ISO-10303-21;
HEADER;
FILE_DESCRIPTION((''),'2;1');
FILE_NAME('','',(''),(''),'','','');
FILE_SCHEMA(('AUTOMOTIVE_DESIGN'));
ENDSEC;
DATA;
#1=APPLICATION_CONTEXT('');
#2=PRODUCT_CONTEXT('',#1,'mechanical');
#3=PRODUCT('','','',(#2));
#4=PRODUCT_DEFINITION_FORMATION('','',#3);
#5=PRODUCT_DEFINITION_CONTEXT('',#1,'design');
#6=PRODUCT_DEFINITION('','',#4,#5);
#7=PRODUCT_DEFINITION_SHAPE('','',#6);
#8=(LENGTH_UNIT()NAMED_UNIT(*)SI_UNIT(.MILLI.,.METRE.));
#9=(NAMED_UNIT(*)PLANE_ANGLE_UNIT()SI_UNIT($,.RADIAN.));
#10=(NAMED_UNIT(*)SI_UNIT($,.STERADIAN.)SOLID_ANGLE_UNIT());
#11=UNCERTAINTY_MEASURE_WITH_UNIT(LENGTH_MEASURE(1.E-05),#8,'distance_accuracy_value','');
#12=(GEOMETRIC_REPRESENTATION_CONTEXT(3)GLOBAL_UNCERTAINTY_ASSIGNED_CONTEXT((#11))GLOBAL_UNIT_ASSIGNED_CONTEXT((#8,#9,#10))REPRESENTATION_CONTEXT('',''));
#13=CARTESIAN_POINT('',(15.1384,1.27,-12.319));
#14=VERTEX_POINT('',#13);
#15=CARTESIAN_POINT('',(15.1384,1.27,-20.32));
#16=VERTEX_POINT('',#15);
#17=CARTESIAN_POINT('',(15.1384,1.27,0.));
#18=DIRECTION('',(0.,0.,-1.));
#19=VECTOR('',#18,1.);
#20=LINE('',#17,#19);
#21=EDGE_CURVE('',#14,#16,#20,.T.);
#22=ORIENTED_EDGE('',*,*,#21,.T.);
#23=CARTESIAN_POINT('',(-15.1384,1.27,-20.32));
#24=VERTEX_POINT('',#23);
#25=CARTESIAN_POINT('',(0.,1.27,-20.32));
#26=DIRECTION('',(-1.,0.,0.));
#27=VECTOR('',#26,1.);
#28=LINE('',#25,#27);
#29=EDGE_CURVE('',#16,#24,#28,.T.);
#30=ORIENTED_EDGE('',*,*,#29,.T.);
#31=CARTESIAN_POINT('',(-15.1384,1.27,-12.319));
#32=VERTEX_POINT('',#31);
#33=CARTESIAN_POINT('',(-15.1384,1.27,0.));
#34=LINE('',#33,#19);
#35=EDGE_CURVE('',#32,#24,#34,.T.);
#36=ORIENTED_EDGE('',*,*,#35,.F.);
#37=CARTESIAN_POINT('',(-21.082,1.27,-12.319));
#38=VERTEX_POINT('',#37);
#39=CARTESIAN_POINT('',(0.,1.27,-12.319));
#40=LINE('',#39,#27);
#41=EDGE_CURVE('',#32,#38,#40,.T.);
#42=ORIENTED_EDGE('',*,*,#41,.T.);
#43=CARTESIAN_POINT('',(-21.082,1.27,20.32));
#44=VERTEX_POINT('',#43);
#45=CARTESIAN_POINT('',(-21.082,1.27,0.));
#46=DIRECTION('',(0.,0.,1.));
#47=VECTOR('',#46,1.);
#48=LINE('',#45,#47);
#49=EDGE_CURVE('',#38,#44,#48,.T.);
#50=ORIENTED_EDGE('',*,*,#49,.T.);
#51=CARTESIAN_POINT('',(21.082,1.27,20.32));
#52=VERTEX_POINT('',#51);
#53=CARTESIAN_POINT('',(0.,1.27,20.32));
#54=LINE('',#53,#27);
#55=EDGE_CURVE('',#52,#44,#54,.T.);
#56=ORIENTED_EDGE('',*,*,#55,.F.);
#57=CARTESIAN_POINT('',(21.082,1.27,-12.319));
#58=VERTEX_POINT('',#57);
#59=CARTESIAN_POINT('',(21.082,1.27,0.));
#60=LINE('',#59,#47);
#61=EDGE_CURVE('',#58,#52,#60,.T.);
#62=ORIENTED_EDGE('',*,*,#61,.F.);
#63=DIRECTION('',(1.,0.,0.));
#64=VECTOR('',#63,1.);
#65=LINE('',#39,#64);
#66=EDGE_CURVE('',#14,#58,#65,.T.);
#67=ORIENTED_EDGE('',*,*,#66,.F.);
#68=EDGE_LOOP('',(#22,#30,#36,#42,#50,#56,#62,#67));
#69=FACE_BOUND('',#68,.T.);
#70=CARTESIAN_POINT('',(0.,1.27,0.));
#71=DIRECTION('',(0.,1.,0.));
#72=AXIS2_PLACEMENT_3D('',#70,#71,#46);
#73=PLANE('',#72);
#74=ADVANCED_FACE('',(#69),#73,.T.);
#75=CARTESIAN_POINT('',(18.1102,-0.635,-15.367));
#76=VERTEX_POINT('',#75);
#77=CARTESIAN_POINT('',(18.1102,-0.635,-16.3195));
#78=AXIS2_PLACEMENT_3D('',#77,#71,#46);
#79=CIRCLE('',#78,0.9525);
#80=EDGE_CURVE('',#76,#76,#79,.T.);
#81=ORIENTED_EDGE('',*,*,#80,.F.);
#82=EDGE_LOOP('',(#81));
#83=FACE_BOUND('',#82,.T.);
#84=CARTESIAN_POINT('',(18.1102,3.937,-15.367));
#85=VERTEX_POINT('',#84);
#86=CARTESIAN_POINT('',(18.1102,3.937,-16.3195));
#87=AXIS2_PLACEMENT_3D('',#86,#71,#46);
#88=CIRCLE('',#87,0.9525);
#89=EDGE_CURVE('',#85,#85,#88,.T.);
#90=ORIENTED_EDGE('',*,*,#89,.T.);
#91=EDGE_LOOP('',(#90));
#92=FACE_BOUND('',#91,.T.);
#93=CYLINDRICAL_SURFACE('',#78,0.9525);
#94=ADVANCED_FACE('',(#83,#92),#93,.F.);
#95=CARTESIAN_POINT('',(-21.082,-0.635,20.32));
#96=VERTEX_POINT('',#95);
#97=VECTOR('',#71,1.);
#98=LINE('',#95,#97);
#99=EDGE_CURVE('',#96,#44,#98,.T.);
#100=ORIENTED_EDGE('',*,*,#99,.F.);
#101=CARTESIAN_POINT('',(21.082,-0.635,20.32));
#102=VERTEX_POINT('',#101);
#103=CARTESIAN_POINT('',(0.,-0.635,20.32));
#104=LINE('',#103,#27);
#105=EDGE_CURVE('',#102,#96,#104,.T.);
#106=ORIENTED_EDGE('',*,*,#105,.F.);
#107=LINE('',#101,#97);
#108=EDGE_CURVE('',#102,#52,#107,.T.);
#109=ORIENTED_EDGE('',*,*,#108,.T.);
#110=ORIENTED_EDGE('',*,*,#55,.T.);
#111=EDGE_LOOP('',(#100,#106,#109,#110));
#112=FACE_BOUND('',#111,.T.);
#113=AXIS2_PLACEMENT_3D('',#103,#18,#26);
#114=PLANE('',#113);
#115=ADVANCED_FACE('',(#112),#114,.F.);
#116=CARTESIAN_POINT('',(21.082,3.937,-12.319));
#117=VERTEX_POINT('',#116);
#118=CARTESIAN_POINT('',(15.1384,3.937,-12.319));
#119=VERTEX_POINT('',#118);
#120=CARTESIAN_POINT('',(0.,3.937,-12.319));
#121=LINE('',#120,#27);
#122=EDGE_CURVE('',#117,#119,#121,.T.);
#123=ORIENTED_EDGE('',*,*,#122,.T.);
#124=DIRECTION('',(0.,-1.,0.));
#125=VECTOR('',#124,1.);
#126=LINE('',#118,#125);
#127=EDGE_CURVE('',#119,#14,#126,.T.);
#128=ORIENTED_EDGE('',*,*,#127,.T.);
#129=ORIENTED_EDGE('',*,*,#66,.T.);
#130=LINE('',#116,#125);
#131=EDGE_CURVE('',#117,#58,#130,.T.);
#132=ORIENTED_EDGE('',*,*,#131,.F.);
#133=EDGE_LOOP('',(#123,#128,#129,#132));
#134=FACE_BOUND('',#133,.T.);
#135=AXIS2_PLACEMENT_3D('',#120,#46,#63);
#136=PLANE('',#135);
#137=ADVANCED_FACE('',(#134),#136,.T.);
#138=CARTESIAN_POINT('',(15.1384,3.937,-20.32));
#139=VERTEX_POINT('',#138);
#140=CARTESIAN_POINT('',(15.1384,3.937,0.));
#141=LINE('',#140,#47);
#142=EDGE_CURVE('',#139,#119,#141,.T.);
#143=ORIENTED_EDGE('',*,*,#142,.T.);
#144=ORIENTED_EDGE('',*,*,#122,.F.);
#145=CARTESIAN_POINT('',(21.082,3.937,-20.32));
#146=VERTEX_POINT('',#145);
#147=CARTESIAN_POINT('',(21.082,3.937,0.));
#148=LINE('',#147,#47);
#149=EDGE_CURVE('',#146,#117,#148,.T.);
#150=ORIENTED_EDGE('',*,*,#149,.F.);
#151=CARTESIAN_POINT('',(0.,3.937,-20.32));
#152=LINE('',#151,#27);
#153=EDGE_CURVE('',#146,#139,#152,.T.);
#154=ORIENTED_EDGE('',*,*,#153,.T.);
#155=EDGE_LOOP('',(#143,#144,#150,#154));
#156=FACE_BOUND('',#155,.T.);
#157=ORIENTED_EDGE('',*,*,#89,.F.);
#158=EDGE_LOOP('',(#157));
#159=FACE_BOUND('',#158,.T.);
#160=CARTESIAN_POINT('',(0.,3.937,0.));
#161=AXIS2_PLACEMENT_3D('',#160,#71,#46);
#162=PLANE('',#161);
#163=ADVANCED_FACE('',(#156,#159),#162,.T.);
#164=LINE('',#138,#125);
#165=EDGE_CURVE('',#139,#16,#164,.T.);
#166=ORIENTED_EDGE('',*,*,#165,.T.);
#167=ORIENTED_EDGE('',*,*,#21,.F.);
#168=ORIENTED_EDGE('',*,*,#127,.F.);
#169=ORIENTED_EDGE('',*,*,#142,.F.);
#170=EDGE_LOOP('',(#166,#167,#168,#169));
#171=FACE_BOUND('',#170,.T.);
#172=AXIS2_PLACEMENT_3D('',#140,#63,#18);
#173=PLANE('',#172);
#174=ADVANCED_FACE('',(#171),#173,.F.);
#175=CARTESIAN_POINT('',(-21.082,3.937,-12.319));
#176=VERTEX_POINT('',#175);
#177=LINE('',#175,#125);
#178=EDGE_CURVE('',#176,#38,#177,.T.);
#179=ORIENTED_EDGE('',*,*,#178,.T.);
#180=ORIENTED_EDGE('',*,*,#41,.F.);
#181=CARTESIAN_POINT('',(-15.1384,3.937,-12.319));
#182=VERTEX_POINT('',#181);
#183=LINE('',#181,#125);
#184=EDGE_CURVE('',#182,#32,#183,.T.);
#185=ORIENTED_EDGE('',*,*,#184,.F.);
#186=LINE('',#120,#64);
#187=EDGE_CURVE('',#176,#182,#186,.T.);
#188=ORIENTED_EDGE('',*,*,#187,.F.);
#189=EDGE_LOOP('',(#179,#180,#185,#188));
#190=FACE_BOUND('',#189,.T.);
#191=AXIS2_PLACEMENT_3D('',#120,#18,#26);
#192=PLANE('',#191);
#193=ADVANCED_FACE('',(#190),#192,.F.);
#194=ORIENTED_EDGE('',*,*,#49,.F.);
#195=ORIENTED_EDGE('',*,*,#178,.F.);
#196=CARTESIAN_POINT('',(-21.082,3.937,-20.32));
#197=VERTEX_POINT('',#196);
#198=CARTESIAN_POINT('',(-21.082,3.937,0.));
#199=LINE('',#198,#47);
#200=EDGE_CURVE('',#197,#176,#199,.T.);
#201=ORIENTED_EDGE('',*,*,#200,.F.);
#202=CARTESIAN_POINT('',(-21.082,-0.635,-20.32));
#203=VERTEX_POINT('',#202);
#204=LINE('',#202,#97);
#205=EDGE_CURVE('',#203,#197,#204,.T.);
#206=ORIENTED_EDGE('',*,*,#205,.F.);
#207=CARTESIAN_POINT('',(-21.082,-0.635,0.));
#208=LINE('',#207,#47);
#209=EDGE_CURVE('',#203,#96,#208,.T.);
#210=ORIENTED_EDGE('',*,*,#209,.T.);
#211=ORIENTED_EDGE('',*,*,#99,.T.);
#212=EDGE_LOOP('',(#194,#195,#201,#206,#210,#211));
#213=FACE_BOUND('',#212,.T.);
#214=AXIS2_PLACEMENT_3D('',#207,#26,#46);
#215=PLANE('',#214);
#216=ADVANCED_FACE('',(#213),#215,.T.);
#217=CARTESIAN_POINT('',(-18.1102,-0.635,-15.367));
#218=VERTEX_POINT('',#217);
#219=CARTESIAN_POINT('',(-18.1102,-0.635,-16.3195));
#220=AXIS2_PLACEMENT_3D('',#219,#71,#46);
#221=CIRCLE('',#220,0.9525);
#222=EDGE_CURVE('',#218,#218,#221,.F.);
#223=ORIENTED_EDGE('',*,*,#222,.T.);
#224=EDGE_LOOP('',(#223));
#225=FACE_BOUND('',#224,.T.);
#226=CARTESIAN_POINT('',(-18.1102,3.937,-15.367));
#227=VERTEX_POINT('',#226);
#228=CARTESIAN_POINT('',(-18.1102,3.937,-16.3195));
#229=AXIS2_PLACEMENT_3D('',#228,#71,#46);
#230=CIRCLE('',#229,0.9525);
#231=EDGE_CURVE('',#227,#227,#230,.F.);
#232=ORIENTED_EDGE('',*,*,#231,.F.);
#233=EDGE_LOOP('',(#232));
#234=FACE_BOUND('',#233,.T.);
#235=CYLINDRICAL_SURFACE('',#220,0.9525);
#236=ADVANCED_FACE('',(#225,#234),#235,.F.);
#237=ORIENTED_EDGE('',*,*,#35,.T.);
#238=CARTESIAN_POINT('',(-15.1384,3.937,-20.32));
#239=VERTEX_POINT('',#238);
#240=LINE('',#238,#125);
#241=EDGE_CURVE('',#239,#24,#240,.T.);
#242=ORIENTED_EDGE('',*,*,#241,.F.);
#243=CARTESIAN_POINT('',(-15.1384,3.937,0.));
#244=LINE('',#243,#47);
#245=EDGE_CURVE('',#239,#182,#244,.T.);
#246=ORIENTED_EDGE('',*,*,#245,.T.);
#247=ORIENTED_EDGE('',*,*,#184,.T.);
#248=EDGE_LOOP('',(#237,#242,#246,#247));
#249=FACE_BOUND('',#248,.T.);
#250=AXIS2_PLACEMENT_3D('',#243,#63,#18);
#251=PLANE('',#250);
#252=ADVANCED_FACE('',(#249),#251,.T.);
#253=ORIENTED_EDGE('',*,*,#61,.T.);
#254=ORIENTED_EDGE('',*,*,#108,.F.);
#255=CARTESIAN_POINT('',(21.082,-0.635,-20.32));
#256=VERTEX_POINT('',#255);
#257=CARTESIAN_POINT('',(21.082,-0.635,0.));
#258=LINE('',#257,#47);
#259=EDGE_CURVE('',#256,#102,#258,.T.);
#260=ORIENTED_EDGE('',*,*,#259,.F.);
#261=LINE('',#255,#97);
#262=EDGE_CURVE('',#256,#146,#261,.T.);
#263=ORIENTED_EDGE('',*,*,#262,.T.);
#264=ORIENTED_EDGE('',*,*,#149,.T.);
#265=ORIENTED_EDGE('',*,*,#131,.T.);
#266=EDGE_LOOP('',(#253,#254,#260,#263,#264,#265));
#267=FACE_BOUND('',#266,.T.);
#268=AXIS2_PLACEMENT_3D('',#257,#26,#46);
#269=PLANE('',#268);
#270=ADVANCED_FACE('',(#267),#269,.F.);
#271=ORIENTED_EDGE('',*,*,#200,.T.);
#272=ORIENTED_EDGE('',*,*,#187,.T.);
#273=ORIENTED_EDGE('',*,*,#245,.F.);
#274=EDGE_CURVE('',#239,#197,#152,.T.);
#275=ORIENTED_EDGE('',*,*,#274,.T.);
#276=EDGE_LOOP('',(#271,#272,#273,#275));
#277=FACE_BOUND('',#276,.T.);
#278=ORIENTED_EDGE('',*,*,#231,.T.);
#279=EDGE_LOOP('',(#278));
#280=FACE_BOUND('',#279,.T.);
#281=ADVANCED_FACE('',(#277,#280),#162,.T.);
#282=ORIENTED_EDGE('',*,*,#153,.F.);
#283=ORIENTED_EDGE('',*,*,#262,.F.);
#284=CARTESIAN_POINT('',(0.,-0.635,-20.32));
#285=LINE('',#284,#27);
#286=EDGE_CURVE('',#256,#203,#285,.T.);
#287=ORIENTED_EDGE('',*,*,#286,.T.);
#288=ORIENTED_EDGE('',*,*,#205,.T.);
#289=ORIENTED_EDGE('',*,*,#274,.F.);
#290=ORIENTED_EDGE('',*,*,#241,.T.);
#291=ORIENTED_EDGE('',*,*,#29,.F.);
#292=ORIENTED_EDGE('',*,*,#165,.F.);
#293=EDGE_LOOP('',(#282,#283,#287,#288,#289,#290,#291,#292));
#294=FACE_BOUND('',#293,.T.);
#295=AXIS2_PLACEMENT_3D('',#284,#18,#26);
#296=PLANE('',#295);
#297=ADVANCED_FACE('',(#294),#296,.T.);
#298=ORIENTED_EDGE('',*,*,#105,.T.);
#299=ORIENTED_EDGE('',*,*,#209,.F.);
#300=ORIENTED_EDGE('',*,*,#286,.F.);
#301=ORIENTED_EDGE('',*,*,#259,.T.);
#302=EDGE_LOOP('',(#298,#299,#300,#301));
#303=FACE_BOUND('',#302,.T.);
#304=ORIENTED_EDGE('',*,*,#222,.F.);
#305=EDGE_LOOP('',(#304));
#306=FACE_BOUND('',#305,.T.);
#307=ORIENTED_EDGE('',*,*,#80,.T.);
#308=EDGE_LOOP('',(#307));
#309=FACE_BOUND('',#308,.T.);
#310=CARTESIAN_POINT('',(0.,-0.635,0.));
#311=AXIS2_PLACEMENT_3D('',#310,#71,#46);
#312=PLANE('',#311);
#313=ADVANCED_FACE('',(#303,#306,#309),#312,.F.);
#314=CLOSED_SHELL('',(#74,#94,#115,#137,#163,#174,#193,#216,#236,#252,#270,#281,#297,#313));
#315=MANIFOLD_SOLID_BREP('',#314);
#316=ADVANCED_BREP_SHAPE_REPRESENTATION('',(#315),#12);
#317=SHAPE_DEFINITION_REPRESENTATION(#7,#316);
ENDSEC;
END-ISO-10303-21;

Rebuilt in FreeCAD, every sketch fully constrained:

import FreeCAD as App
import Part
import Sketcher

V = App.Vector
Q = App.Units.Quantity


def add_polygon(sketch, points):
    """Adds a closed chain of lines whose ends are joined by coincident constraints."""
    first, n = sketch.GeometryCount, len(points)
    for a, b in zip(points, points[1:] + points[:1]):
        sketch.addGeometry(Part.LineSegment(App.Vector(*a, 0), App.Vector(*b, 0)), False)
    for i in range(n):
        sketch.addConstraint(Sketcher.Constraint("Coincident", first + i, 2, first + (i + 1) % n, 1))

doc = App.newDocument("Part")
body = doc.addObject("PartDesign::Body", "Body")

sketch1 = body.newObject("Sketcher::SketchObject", "Sketch")
sketch1.AttachmentSupport = (doc.getObject("XZ_Plane"), [""])
sketch1.MapMode = "FlatFace"
add_polygon(sketch1, [(-21.1, -20.3), (-21.1, 20.3), (21.1, 20.3), (21.1, -20.3)])
sketch1.addGeometry(Part.Circle(V(-18.1, -16.3, 0), V(0, 0, 1), 1), False)
sketch1.addGeometry(Part.Circle(V(18.1, -16.3, 0), V(0, 0, 1), 1), False)
sketch1.addConstraint(Sketcher.Constraint("Vertical", 0))
sketch1.addConstraint(Sketcher.Constraint("Horizontal", 1))
sketch1.addConstraint(Sketcher.Constraint("Vertical", 2))
sketch1.addConstraint(Sketcher.Constraint("Horizontal", 3))
sketch1.addConstraint(Sketcher.Constraint("Equal", 4, 5))
sketch1.addConstraint(Sketcher.Constraint("Symmetric", 0, 2, 2, 2, -1, 1))
sketch1.addConstraint(Sketcher.Constraint("Symmetric", 4, 3, 5, 3, -2))
sketch1.addConstraint(Sketcher.Constraint("Diameter", 4, Q("0.075 in")))
sketch1.addConstraint(Sketcher.Constraint("DistanceY", 0, 1, 0, 2, Q("1.6 in")))
sketch1.addConstraint(Sketcher.Constraint("DistanceX", 1, 1, 1, 2, Q("1.66 in")))
sketch1.addConstraint(Sketcher.Constraint("DistanceX", 4, 3, -1, 1, Q("0.713 in")))
sketch1.addConstraint(Sketcher.Constraint("DistanceY", 4, 3, -1, 1, Q("0.6425 in")))
pad1 = body.newObject("PartDesign::Pad", "Pad")
pad1.Profile = sketch1
pad1.Type = "TwoLengths"
pad1.Length = Q("0.05 in")
pad1.Length2 = Q("0.025 in")
pad1.Reversed = True

sketch2 = body.newObject("Sketcher::SketchObject", "Sketch001")
sketch2.AttachmentSupport = (doc.getObject("XZ_Plane"), [""])
sketch2.MapMode = "FlatFace"
add_polygon(sketch2, [(-21.1, -20.3), (-21.1, -12.3), (-15.1, -12.3), (-15.1, -20.3)])
sketch2.addGeometry(Part.Circle(V(-18.1, -16.3, 0), V(0, 0, 1), 1), False)
add_polygon(sketch2, [(15.1, -20.3), (15.1, -12.3), (21.1, -12.3), (21.1, -20.3)])
sketch2.addGeometry(Part.Circle(V(18.1, -16.3, 0), V(0, 0, 1), 1), False)
sketch2.addConstraint(Sketcher.Constraint("Vertical", 0))
sketch2.addConstraint(Sketcher.Constraint("Horizontal", 1))
sketch2.addConstraint(Sketcher.Constraint("Vertical", 2))
sketch2.addConstraint(Sketcher.Constraint("Horizontal", 3))
sketch2.addConstraint(Sketcher.Constraint("Vertical", 5))
sketch2.addConstraint(Sketcher.Constraint("Horizontal", 6))
sketch2.addConstraint(Sketcher.Constraint("Vertical", 7))
sketch2.addConstraint(Sketcher.Constraint("Horizontal", 8))
sketch2.addConstraint(Sketcher.Constraint("Equal", 4, 9))
sketch2.addConstraint(Sketcher.Constraint("Symmetric", 4, 3, 9, 3, -2))
sketch2.addConstraint(Sketcher.Constraint("Symmetric", 1, 2, 5, 2, -2))
sketch2.addConstraint(Sketcher.Constraint("Symmetric", 3, 2, 7, 2, -2))
sketch2.addConstraint(Sketcher.Constraint("Diameter", 4, Q("0.075 in")))
sketch2.addConstraint(Sketcher.Constraint("DistanceY", 2, 2, -1, 1, Q("0.8 in")))
sketch2.addConstraint(Sketcher.Constraint("DistanceX", 1, 1, 1, 2, Q("0.234 in")))
sketch2.addConstraint(Sketcher.Constraint("DistanceY", 0, 1, 0, 2, Q("0.315 in")))
sketch2.addConstraint(Sketcher.Constraint("DistanceX", 0, 2, -1, 1, Q("0.83 in")))
sketch2.addConstraint(Sketcher.Constraint("DistanceX", 4, 3, -1, 1, Q("0.713 in")))
sketch2.addConstraint(Sketcher.Constraint("DistanceY", 4, 3, -1, 1, Q("0.6425 in")))
pad2 = body.newObject("PartDesign::Pad", "Pad001")
pad2.Profile = sketch2
pad2.Length = Q("0.155 in")
pad2.Reversed = True

doc.recompute()
